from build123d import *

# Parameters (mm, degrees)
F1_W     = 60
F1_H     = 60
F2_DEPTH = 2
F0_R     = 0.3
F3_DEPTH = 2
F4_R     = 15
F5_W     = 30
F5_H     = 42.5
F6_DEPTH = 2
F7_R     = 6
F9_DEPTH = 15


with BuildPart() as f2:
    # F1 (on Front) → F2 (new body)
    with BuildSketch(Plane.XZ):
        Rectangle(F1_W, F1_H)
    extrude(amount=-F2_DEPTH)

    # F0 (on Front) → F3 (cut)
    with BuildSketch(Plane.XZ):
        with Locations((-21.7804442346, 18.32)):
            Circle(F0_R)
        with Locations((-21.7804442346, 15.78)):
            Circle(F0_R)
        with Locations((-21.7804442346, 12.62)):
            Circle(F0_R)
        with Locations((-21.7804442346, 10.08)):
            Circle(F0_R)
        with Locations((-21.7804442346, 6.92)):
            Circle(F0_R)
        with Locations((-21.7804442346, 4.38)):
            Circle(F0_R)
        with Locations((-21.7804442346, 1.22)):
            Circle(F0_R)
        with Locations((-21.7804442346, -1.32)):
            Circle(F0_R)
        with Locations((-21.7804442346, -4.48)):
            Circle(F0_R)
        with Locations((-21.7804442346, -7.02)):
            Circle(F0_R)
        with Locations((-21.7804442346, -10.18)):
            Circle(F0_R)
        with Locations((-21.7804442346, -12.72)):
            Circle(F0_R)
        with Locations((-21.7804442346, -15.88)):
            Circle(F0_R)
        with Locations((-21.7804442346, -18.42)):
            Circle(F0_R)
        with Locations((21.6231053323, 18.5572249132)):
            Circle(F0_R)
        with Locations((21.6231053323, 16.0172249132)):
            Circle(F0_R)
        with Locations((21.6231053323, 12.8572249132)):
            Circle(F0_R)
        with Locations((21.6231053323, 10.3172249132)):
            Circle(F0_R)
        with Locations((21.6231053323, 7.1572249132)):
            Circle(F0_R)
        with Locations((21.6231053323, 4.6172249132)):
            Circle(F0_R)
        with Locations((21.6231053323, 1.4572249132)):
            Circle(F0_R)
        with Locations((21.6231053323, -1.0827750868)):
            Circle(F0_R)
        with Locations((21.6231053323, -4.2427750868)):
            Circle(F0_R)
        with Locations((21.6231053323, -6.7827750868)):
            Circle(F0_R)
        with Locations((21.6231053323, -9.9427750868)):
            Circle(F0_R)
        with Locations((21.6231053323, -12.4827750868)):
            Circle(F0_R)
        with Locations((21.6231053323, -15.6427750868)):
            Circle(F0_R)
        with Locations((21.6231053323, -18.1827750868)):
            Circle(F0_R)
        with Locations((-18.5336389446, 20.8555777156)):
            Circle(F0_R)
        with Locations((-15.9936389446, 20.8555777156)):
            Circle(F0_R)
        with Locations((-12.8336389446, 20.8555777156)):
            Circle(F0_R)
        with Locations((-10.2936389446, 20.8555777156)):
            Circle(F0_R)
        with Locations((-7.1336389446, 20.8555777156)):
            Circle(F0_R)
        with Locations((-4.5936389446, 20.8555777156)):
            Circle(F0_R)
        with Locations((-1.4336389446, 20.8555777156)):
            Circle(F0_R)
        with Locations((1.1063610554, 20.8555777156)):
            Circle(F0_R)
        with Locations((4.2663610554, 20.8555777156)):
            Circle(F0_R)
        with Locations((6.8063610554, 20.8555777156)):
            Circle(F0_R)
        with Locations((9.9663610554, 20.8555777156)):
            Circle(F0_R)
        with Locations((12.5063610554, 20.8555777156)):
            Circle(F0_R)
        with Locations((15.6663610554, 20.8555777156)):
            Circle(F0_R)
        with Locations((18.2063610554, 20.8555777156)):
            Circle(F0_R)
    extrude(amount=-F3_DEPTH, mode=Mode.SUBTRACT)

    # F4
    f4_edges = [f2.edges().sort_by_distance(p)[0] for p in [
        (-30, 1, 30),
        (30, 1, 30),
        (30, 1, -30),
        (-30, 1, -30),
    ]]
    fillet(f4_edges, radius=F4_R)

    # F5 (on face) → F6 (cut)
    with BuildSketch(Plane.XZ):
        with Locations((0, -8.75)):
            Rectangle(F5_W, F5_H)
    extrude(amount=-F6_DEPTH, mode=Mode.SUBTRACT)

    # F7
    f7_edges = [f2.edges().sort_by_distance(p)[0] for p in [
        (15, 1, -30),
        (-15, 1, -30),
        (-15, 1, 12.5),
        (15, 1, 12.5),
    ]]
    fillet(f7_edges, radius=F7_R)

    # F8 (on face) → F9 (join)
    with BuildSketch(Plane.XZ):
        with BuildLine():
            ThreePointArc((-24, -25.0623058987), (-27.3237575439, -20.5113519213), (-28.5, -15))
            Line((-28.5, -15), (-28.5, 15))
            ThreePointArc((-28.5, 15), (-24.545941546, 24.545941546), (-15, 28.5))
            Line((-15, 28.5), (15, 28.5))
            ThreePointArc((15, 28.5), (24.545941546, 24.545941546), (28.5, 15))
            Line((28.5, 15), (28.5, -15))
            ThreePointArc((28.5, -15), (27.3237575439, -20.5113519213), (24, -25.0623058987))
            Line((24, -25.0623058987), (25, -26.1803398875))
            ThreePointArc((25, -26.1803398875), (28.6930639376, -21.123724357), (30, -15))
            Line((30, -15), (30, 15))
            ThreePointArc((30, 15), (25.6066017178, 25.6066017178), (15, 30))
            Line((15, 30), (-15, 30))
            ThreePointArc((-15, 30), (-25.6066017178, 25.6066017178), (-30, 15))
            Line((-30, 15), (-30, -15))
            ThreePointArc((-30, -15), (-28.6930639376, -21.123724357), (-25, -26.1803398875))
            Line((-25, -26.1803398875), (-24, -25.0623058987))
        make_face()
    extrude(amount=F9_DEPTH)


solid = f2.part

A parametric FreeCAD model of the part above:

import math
import FreeCAD as App
import Part
import Sketcher

V = App.Vector


def edges_at(feature, points):
    """Names of the edges that pass closest to the given points."""
    edges = feature.Shape.Edges
    near = lambda p: min(range(len(edges)), key=lambda i: edges[i].distToShape(Part.Vertex(*p))[0])
    return sorted({f"Edge{near(p) + 1}" for p in points})

doc = App.newDocument("Part")
params = doc.addObject("Spreadsheet::Sheet", "Params")
for row, (alias, value) in enumerate([
    ("sketch1_width", "60 mm"),
    ("pad1_length", "2 mm"),
    ("sketch2_diameter", "0.6 mm"),
    ("pocket1_length", "2 mm"),
    ("fillet_radius", "15 mm"),
    ("sketch3_width", "30 mm"),
    ("sketch3_height", "42.5 mm"),
    ("pocket2_length", "2 mm"),
    ("fillet2_radius", "6 mm"),
    ("sketch4_radius", "15 mm"),
    ("sketch4_radius2", "13.5 mm"),
    ("sketch4_width", "30 mm"),
    ("pad2_length", "15 mm"),
], start=1):
    params.set(f"A{row}", alias)
    params.set(f"B{row}", "=" + value)
    params.setAlias(f"B{row}", alias)

body = doc.addObject("PartDesign::Body", "Body")

# Sketch on XZ plane
sketch1 = body.newObject("Sketcher::SketchObject", "Sketch")
sketch1.AttachmentSupport = (doc.getObject("XZ_Plane"), [""])
sketch1.MapMode = "FlatFace"
sketch1.addGeometry([
    Part.LineSegment(V(-30, 30, 0), V(-30, -30, 0)),
    Part.LineSegment(V(-30, -30, 0), V(30, -30, 0)),
    Part.LineSegment(V(30, -30, 0), V(30, 30, 0)),
    Part.LineSegment(V(30, 30, 0), V(-30, 30, 0)),
], False)
sketch1.addConstraint([
    Sketcher.Constraint("Coincident", 0, 2, 1, 1),
    Sketcher.Constraint("Coincident", 1, 2, 2, 1),
    Sketcher.Constraint("Coincident", 2, 2, 3, 1),
    Sketcher.Constraint("Coincident", 3, 2, 0, 1),
    Sketcher.Constraint("Vertical", 0),
    Sketcher.Constraint("Horizontal", 1),
    Sketcher.Constraint("Vertical", 2),
    Sketcher.Constraint("Horizontal", 3),
    Sketcher.Constraint("Symmetric", 0, 2, 2, 2, -1, 1),
    Sketcher.Constraint("Equal", 3, 0),
    Sketcher.Constraint("DistanceX", 1, 1, 1, 2, 60.0),
])
sketch1.setExpression("Constraints[10]", "Params.sketch1_width")
pad1 = body.newObject("PartDesign::Pad", "Pad")
pad1.Profile = sketch1
pad1.setExpression("Length", "Params.pad1_length")
pad1.Reversed = True

# Sketch on XZ plane
sketch2 = body.newObject("Sketcher::SketchObject", "Sketch001")
sketch2.AttachmentSupport = (doc.getObject("XZ_Plane"), [""])
sketch2.MapMode = "FlatFace"
sketch2.addGeometry([
    Part.Circle(V(-21.78, 18.32, 0), V(0, 0, 1), 0.3),  # 0
    Part.Circle(V(-21.78, 15.78, 0), V(0, 0, 1), 0.3),  # 1
    Part.Circle(V(-21.78, 12.62, 0), V(0, 0, 1), 0.3),  # 2
    Part.Circle(V(-21.78, 10.08, 0), V(0, 0, 1), 0.3),  # 3
    Part.Circle(V(-21.78, 6.92, 0), V(0, 0, 1), 0.3),  # 4
    Part.Circle(V(-21.78, 4.38, 0), V(0, 0, 1), 0.3),  # 5
    Part.Circle(V(-21.78, 1.22, 0), V(0, 0, 1), 0.3),  # 6
    Part.Circle(V(-21.78, -1.32, 0), V(0, 0, 1), 0.3),  # 7
    Part.Circle(V(-21.78, -4.48, 0), V(0, 0, 1), 0.3),  # 8
    Part.Circle(V(-21.78, -7.02, 0), V(0, 0, 1), 0.3),  # 9
    Part.Circle(V(-21.78, -10.18, 0), V(0, 0, 1), 0.3),  # 10
    Part.Circle(V(-21.78, -12.72, 0), V(0, 0, 1), 0.3),  # 11
    Part.Circle(V(-21.78, -15.88, 0), V(0, 0, 1), 0.3),  # 12
    Part.Circle(V(-21.78, -18.42, 0), V(0, 0, 1), 0.3),  # 13
    Part.Circle(V(21.62, 18.56, 0), V(0, 0, 1), 0.3),  # 14
    Part.Circle(V(21.62, 16.02, 0), V(0, 0, 1), 0.3),  # 15
    Part.Circle(V(21.62, 12.86, 0), V(0, 0, 1), 0.3),  # 16
    Part.Circle(V(21.62, 10.32, 0), V(0, 0, 1), 0.3),  # 17
    Part.Circle(V(21.62, 7.16, 0), V(0, 0, 1), 0.3),  # 18
    Part.Circle(V(21.62, 4.62, 0), V(0, 0, 1), 0.3),  # 19
    Part.Circle(V(21.62, 1.46, 0), V(0, 0, 1), 0.3),  # 20
    Part.Circle(V(21.62, -1.08, 0), V(0, 0, 1), 0.3),  # 21
    Part.Circle(V(21.62, -4.24, 0), V(0, 0, 1), 0.3),  # 22
    Part.Circle(V(21.62, -6.78, 0), V(0, 0, 1), 0.3),  # 23
    Part.Circle(V(21.62, -9.94, 0), V(0, 0, 1), 0.3),  # 24
    Part.Circle(V(21.62, -12.48, 0), V(0, 0, 1), 0.3),  # 25
    Part.Circle(V(21.62, -15.64, 0), V(0, 0, 1), 0.3),  # 26
    Part.Circle(V(21.62, -18.18, 0), V(0, 0, 1), 0.3),  # 27
    Part.Circle(V(-18.53, 20.86, 0), V(0, 0, 1), 0.3),  # 28
    Part.Circle(V(-15.99, 20.86, 0), V(0, 0, 1), 0.3),  # 29
    Part.Circle(V(-12.83, 20.86, 0), V(0, 0, 1), 0.3),  # 30
    Part.Circle(V(-10.29, 20.86, 0), V(0, 0, 1), 0.3),  # 31
    Part.Circle(V(-7.13, 20.86, 0), V(0, 0, 1), 0.3),  # 32
    Part.Circle(V(-4.59, 20.86, 0), V(0, 0, 1), 0.3),  # 33
    Part.Circle(V(-1.43, 20.86, 0), V(0, 0, 1), 0.3),  # 34
    Part.Circle(V(1.11, 20.86, 0), V(0, 0, 1), 0.3),  # 35
    Part.Circle(V(4.27, 20.86, 0), V(0, 0, 1), 0.3),  # 36
    Part.Circle(V(6.81, 20.86, 0), V(0, 0, 1), 0.3),  # 37
    Part.Circle(V(9.97, 20.86, 0), V(0, 0, 1), 0.3),  # 38
    Part.Circle(V(12.51, 20.86, 0), V(0, 0, 1), 0.3),  # 39
    Part.Circle(V(15.67, 20.86, 0), V(0, 0, 1), 0.3),  # 40
    Part.Circle(V(18.21, 20.86, 0), V(0, 0, 1), 0.3),  # 41
], False)
sketch2.addConstraint([
    Sketcher.Constraint("Equal", 0, 1),
    Sketcher.Constraint("Equal", 1, 2),
    Sketcher.Constraint("Equal", 2, 3),
    Sketcher.Constraint("Equal", 3, 4),
    Sketcher.Constraint("Equal", 4, 5),
    Sketcher.Constraint("Equal", 5, 6),
    Sketcher.Constraint("Equal", 6, 7),
    Sketcher.Constraint("Equal", 7, 8),
    Sketcher.Constraint("Equal", 8, 9),
    Sketcher.Constraint("Equal", 9, 10),
    Sketcher.Constraint("Equal", 10, 11),
    Sketcher.Constraint("Equal", 11, 12),
    Sketcher.Constraint("Equal", 12, 13),
    Sketcher.Constraint("Equal", 13, 14),
    Sketcher.Constraint("Equal", 14, 15),
    Sketcher.Constraint("Equal", 15, 16),
    Sketcher.Constraint("Equal", 16, 17),
    Sketcher.Constraint("Equal", 17, 18),
    Sketcher.Constraint("Equal", 18, 19),
    Sketcher.Constraint("Equal", 19, 20),
    Sketcher.Constraint("Equal", 20, 21),
    Sketcher.Constraint("Equal", 21, 22),
    Sketcher.Constraint("Equal", 22, 23),
    Sketcher.Constraint("Equal", 23, 24),
    Sketcher.Constraint("Equal", 24, 25),
    Sketcher.Constraint("Equal", 25, 26),
    Sketcher.Constraint("Equal", 26, 27),
    Sketcher.Constraint("Equal", 27, 28),
    Sketcher.Constraint("Equal", 28, 29),
    Sketcher.Constraint("Equal", 29, 30),
    Sketcher.Constraint("Equal", 30, 31),
    Sketcher.Constraint("Equal", 31, 32),
    Sketcher.Constraint("Equal", 32, 33),
    Sketcher.Constraint("Equal", 33, 34),
    Sketcher.Constraint("Equal", 34, 35),
    Sketcher.Constraint("Equal", 35, 36),
    Sketcher.Constraint("Equal", 36, 37),
    Sketcher.Constraint("Equal", 37, 38),
    Sketcher.Constraint("Equal", 38, 39),
    Sketcher.Constraint("Equal", 39, 40),
    Sketcher.Constraint("Equal", 40, 41),
    Sketcher.Constraint("Horizontal", 28, 3, 29, 3),
    Sketcher.Constraint("Horizontal", 29, 3, 30, 3),
    Sketcher.Constraint("Horizontal", 30, 3, 31, 3),
    Sketcher.Constraint("Horizontal", 31, 3, 32, 3),
    Sketcher.Constraint("Horizontal", 32, 3, 33, 3),
    Sketcher.Constraint("Horizontal", 33, 3, 34, 3),
    Sketcher.Constraint("Horizontal", 34, 3, 35, 3),
    Sketcher.Constraint("Horizontal", 35, 3, 36, 3),
    Sketcher.Constraint("Horizontal", 36, 3, 37, 3),
    Sketcher.Constraint("Horizontal", 37, 3, 38, 3),
    Sketcher.Constraint("Horizontal", 38, 3, 39, 3),
    Sketcher.Constraint("Horizontal", 39, 3, 40, 3),
    Sketcher.Constraint("Horizontal", 40, 3, 41, 3),
    Sketcher.Constraint("Vertical", 0, 3, 1, 3),
    Sketcher.Constraint("Vertical", 1, 3, 2, 3),
    Sketcher.Constraint("Vertical", 2, 3, 3, 3),
    Sketcher.Constraint("Vertical", 3, 3, 4, 3),
    Sketcher.Constraint("Vertical", 4, 3, 5, 3),
    Sketcher.Constraint("Vertical", 5, 3, 6, 3),
    Sketcher.Constraint("Vertical", 6, 3, 7, 3),
    Sketcher.Constraint("Vertical", 7, 3, 8, 3),
    Sketcher.Constraint("Vertical", 8, 3, 9, 3),
    Sketcher.Constraint("Vertical", 9, 3, 10, 3),
    Sketcher.Constraint("Vertical", 10, 3, 11, 3),
    Sketcher.Constraint("Vertical", 11, 3, 12, 3),
    Sketcher.Constraint("Vertical", 12, 3, 13, 3),
    Sketcher.Constraint("Vertical", 14, 3, 15, 3),
    Sketcher.Constraint("Vertical", 15, 3, 16, 3),
    Sketcher.Constraint("Vertical", 16, 3, 17, 3),
    Sketcher.Constraint("Vertical", 17, 3, 18, 3),
    Sketcher.Constraint("Vertical", 18, 3, 19, 3),
    Sketcher.Constraint("Vertical", 19, 3, 20, 3),
    Sketcher.Constraint("Vertical", 20, 3, 21, 3),
    Sketcher.Constraint("Vertical", 21, 3, 22, 3),
    Sketcher.Constraint("Vertical", 22, 3, 23, 3),
    Sketcher.Constraint("Vertical", 23, 3, 24, 3),
    Sketcher.Constraint("Vertical", 24, 3, 25, 3),
    Sketcher.Constraint("Vertical", 25, 3, 26, 3),
    Sketcher.Constraint("Vertical", 26, 3, 27, 3),
    Sketcher.Constraint("Diameter", 0, 0.6),
    Sketcher.Constraint("DistanceY", 2, 3, 0, 3, 5.7),
    Sketcher.Constraint("DistanceY", 3, 3, 1, 3, 5.7),
    Sketcher.Constraint("DistanceY", 4, 3, 2, 3, 5.7),
    Sketcher.Constraint("DistanceY", 5, 3, 3, 3, 5.7),
    Sketcher.Constraint("DistanceY", 6, 3, 4, 3, 5.7),
    Sketcher.Constraint("DistanceY", 7, 3, 5, 3, 5.7),
    Sketcher.Constraint("DistanceY", 8, 3, 6, 3, 5.7),
    Sketcher.Constraint("DistanceY", 9, 3, 7, 3, 5.7),
    Sketcher.Constraint("DistanceY", 10, 3, 8, 3, 5.7),
    Sketcher.Constraint("DistanceY", 11, 3, 9, 3, 5.7),
    Sketcher.Constraint("DistanceY", 12, 3, 10, 3, 5.7),
    Sketcher.Constraint("DistanceY", 13, 3, 11, 3, 5.7),
    Sketcher.Constraint("DistanceY", 16, 3, 14, 3, 5.7),
    Sketcher.Constraint("DistanceY", 17, 3, 15, 3, 5.7),
    Sketcher.Constraint("DistanceY", 18, 3, 16, 3, 5.7),
    Sketcher.Constraint("DistanceY", 19, 3, 17, 3, 5.7),
    Sketcher.Constraint("DistanceY", 20, 3, 18, 3, 5.7),
    Sketcher.Constraint("DistanceY", 21, 3, 19, 3, 5.7),
    Sketcher.Constraint("DistanceY", 22, 3, 20, 3, 5.7),
    Sketcher.Constraint("DistanceY", 23, 3, 21, 3, 5.7),
    Sketcher.Constraint("DistanceY", 24, 3, 22, 3, 5.7),
    Sketcher.Constraint("DistanceY", 25, 3, 23, 3, 5.7),
    Sketcher.Constraint("DistanceY", 26, 3, 24, 3, 5.7),
    Sketcher.Constraint("DistanceY", 27, 3, 25, 3, 5.7),
    Sketcher.Constraint("DistanceX", 28, 3, 30, 3, 5.7),
    Sketcher.Constraint("DistanceX", 29, 3, 31, 3, 5.7),
    Sketcher.Constraint("DistanceX", 30, 3, 32, 3, 5.7),
    Sketcher.Constraint("DistanceX", 31, 3, 33, 3, 5.7),
    Sketcher.Constraint("DistanceX", 32, 3, 34, 3, 5.7),
    Sketcher.Constraint("DistanceX", 33, 3, 35, 3, 5.7),
    Sketcher.Constraint("DistanceX", 34, 3, 36, 3, 5.7),
    Sketcher.Constraint("DistanceX", 35, 3, 37, 3, 5.7),
    Sketcher.Constraint("DistanceX", 36, 3, 38, 3, 5.7),
    Sketcher.Constraint("DistanceX", 37, 3, 39, 3, 5.7),
    Sketcher.Constraint("DistanceX", 38, 3, 40, 3, 5.7),
    Sketcher.Constraint("DistanceX", 39, 3, 41, 3, 5.7),
    Sketcher.Constraint("DistanceY", -1, 1, 0, 3, 18.32),
    Sketcher.Constraint("DistanceY", -1, 1, 1, 3, 15.78),
    Sketcher.Constraint("DistanceY", 15, 3, 14, 3, 2.54),
    Sketcher.Constraint("DistanceX", 28, 3, 29, 3, 2.54),
    Sketcher.Constraint("DistanceX", 28, 3, -1, 1, 18.533639),
    Sketcher.Constraint("DistanceX", 0, 3, 14, 3, 43.40355),
    Sketcher.Constraint("DistanceX", 0, 3, -1, 1, 21.780444),
    Sketcher.Constraint("DistanceY", -1, 1, 14, 3, 18.557225),
    Sketcher.Constraint("DistanceY", -1, 1, 28, 3, 20.855578),
])
sketch2.setExpression("Constraints[80]", "Params.sketch2_diameter")
pocket1 = body.newObject("PartDesign::Pocket", "Pocket")
pocket1.Profile = sketch2
pocket1.setExpression("Length", "Params.pocket1_length")
doc.recompute()

fillet = body.newObject("PartDesign::Fillet", "Fillet")
fillet.Base = (pocket1, edges_at(pocket1, [
    (-30, 1, 30),
    (30, 1, 30),
    (30, 1, -30),
    (-30, 1, -30),
]))
fillet.setExpression("Radius", "Params.fillet_radius")

# Sketch on XZ plane
sketch3 = body.newObject("Sketcher::SketchObject", "Sketch002")
sketch3.AttachmentSupport = (doc.getObject("XZ_Plane"), [""])
sketch3.MapMode = "FlatFace"
sketch3.addGeometry([
    Part.LineSegment(V(-15, 12, 0), V(-15, -30, 0)),
    Part.LineSegment(V(-15, -30, 0), V(15, -30, 0)),
    Part.LineSegment(V(15, -30, 0), V(15, 12, 0)),
    Part.LineSegment(V(15, 12, 0), V(-15, 12, 0)),
], False)
sketch3.addConstraint([
    Sketcher.Constraint("Coincident", 0, 2, 1, 1),
    Sketcher.Constraint("Coincident", 1, 2, 2, 1),
    Sketcher.Constraint("Coincident", 2, 2, 3, 1),
    Sketcher.Constraint("Coincident", 3, 2, 0, 1),
    Sketcher.Constraint("Vertical", 0),
    Sketcher.Constraint("Horizontal", 1),
    Sketcher.Constraint("Vertical", 2),
    Sketcher.Constraint("Horizontal", 3),
    Sketcher.Constraint("DistanceX", 1, 1, 1, 2, 30.0),
    Sketcher.Constraint("DistanceY", 0, 2, 0, 1, 42.5),
    Sketcher.Constraint("DistanceX", 0, 2, -1, 1, 15.0),
    Sketcher.Constraint("DistanceY", 0, 2, -1, 1, 30.0),
])
sketch3.setExpression("Constraints[8]", "Params.sketch3_width")
sketch3.setExpression("Constraints[9]", "Params.sketch3_height")
pocket2 = body.newObject("PartDesign::Pocket", "Pocket001")
pocket2.Profile = sketch3
pocket2.setExpression("Length", "Params.pocket2_length")
doc.recompute()

fillet2 = body.newObject("PartDesign::Fillet", "Fillet001")
fillet2.Base = (pocket2, edges_at(pocket2, [
    (15, 1, -30),
    (-15, 1, -30),
    (-15, 1, 12.5),
    (15, 1, 12.5),
]))
fillet2.setExpression("Radius", "Params.fillet2_radius")

# Sketch on XZ plane
sketch4 = body.newObject("Sketcher::SketchObject", "Sketch003")
sketch4.AttachmentSupport = (doc.getObject("XZ_Plane"), [""])
sketch4.MapMode = "FlatFace"
sketch4.addGeometry([
    Part.ArcOfCircle(Part.Circle(V(-15, -15, 0), V(0, 0, 1), 13.5), math.radians(180), math.radians(228)),  # 0
    Part.LineSegment(V(-28.5, -15, 0), V(-28.5, 15, 0)),  # 1
    Part.ArcOfCircle(Part.Circle(V(-15, 15, 0), V(0, 0, 1), 13.5), math.radians(90), math.radians(180)),  # 2
    Part.LineSegment(V(-15, 28.5, 0), V(15, 28.5, 0)),  # 3
    Part.ArcOfCircle(Part.Circle(V(15, 15, 0), V(0, 0, 1), 13.5), math.radians(0), math.radians(90)),  # 4
    Part.LineSegment(V(28.5, 15, 0), V(28.5, -15, 0)),  # 5
    Part.ArcOfCircle(Part.Circle(V(15, -15, 0), V(0, 0, 1), 13.5), math.radians(-48), math.radians(0)),  # 6
    Part.LineSegment(V(24, -25.1, 0), V(25, -26.2, 0)),  # 7
    Part.ArcOfCircle(Part.Circle(V(15, -15, 0), V(0, 0, 1), 15), math.radians(-48), math.radians(0)),  # 8
    Part.LineSegment(V(30, -15, 0), V(30, 15, 0)),  # 9
    Part.ArcOfCircle(Part.Circle(V(15, 15, 0), V(0, 0, 1), 15), math.radians(0), math.radians(90)),  # 10
    Part.LineSegment(V(15, 30, 0), V(-15, 30, 0)),  # 11
    Part.ArcOfCircle(Part.Circle(V(-15, 15, 0), V(0, 0, 1), 15), math.radians(90), math.radians(180)),  # 12
    Part.LineSegment(V(-30, 15, 0), V(-30, -15, 0)),  # 13
    Part.ArcOfCircle(Part.Circle(V(-15, -15, 0), V(0, 0, 1), 15), math.radians(180), math.radians(228)),  # 14
    Part.LineSegment(V(-25, -26.2, 0), V(-24, -25.1, 0)),  # 15
], False)
sketch4.addConstraint([
    Sketcher.Constraint("Tangent", 0, 1, 1, 1),
    Sketcher.Constraint("Tangent", 1, 2, 2, 2),
    Sketcher.Constraint("Tangent", 2, 1, 3, 1),
    Sketcher.Constraint("Tangent", 3, 2, 4, 2),
    Sketcher.Constraint("Tangent", 4, 1, 5, 1),
    Sketcher.Constraint("Tangent", 5, 2, 6, 2),
    Sketcher.Constraint("Coincident", 6, 1, 7, 1),
    Sketcher.Constraint("Coincident", 7, 2, 8, 1),
    Sketcher.Constraint("Tangent", 8, 2, 9, 1),
    Sketcher.Constraint("Tangent", 9, 2, 10, 1),
    Sketcher.Constraint("Tangent", 10, 2, 11, 1),
    Sketcher.Constraint("Tangent", 11, 2, 12, 1),
    Sketcher.Constraint("Tangent", 12, 2, 13, 1),
    Sketcher.Constraint("Tangent", 13, 2, 14, 1),
    Sketcher.Constraint("Coincident", 14, 2, 15, 1),
    Sketcher.Constraint("Coincident", 15, 2, 0, 2),
    Sketcher.Constraint("Vertical", 1),
    Sketcher.Constraint("Horizontal", 3),
    Sketcher.Constraint("Vertical", 5),
    Sketcher.Constraint("Vertical", 9),
    Sketcher.Constraint("Horizontal", 11),
    Sketcher.Constraint("Vertical", 13),
    Sketcher.Constraint("Coincident", 8, 3, 6, 3),
    Sketcher.Constraint("Coincident", 10, 3, 4, 3),
    Sketcher.Constraint("Coincident", 12, 3, 2, 3),
    Sketcher.Constraint("Coincident", 14, 3, 0, 3),
    Sketcher.Constraint("Equal", 0, 2),
    Sketcher.Constraint("Equal", 2, 4),
    Sketcher.Constraint("Equal", 4, 6),
    Sketcher.Constraint("Symmetric", 0, 3, 4, 3, -1, 1),
    Sketcher.Constraint("Symmetric", 7, 2, 14, 2, -2),
    Sketcher.Constraint("Horizontal", 6, 1, 15, 2),
    Sketcher.Constraint("Equal", 11, 1),
    Sketcher.Constraint("Radius", 8, 15.0),
    Sketcher.Constraint("Radius", 0, 13.5),
    Sketcher.Constraint("DistanceX", 3, 1, 3, 2, 30.0),
    Sketcher.Constraint("DistanceX", -1, 1, 6, 1, 24.0),
    Sketcher.Constraint("DistanceX", -1, 1, 7, 2, 25.0),
])
sketch4.setExpression("Constraints[33]", "Params.sketch4_radius")
sketch4.setExpression("Constraints[34]", "Params.sketch4_radius2")
sketch4.setExpression("Constraints[35]", "Params.sketch4_width")
pad2 = body.newObject("PartDesign::Pad", "Pad001")
pad2.Profile = sketch4
pad2.setExpression("Length", "Params.pad2_length")

doc.recompute()
